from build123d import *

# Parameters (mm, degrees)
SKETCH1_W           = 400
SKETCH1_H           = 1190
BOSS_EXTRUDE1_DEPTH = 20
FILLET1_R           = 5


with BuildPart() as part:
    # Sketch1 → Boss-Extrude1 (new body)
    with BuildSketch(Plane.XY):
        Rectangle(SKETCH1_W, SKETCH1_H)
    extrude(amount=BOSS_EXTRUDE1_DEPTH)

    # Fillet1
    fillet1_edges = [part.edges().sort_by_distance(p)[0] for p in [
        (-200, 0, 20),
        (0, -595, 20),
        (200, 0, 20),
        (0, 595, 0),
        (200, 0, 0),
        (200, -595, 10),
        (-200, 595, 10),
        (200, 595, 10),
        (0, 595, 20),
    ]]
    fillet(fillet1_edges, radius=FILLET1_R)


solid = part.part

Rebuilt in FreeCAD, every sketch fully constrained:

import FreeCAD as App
import Part
import Sketcher
from FreeCAD import Vector


def edges_at(feature, points):
    """Names of the edges that pass closest to the given points."""
    edges = feature.Shape.Edges
    near = lambda p: min(range(len(edges)), key=lambda i: edges[i].distToShape(Part.Vertex(*p))[0])
    return sorted({f"Edge{near(p) + 1}" for p in points})


def add_polygon(sketch, points):
    """Adds a closed chain of lines whose ends are joined by coincident constraints."""
    first, n = sketch.GeometryCount, len(points)
    for a, b in zip(points, points[1:] + points[:1]):
        sketch.addGeometry(Part.LineSegment(App.Vector(*a, 0), App.Vector(*b, 0)), False)
    for i in range(n):
        sketch.addConstraint(Sketcher.Constraint("Coincident", first + i, 2, first + (i + 1) % n, 1))

doc = App.newDocument("Part")
body = doc.addObject("PartDesign::Body", "Body")

sketch1 = body.newObject("Sketcher::SketchObject", "Sketch")
sketch1.AttachmentSupport = (doc.getObject("XY_Plane"), [""])
sketch1.MapMode = "FlatFace"
add_polygon(sketch1, [(-200, 595), (-200, -595), (200, -595), (200, 595)])
sketch1.addConstraint(Sketcher.Constraint("Vertical", 0))
sketch1.addConstraint(Sketcher.Constraint("Horizontal", 1))
sketch1.addConstraint(Sketcher.Constraint("Vertical", 2))
sketch1.addConstraint(Sketcher.Constraint("Horizontal", 3))
sketch1.addConstraint(Sketcher.Constraint("Symmetric", 0, 2, 2, 2, -1, 1))
sketch1.addConstraint(Sketcher.Constraint("DistanceX", 1, 1, 1, 2, 400.0))
sketch1.addConstraint(Sketcher.Constraint("DistanceY", 0, 2, 0, 1, 1190.0))
pad1 = body.newObject("PartDesign::Pad", "Pad")
pad1.Profile = sketch1
pad1.Length = 20
doc.recompute()

fillet = body.newObject("PartDesign::Fillet", "Fillet")
fillet.Base = (pad1, edges_at(pad1, [
    (-200, 0, 20),
    (0, -595, 20),
    (200, 0, 20),
    (0, 595, 0),
    (200, 0, 0),
    (200, -595, 10),
    (-200, 595, 10),
    (200, 595, 10),
    (0, 595, 20),
]))
fillet.Radius = 5

doc.recompute()
